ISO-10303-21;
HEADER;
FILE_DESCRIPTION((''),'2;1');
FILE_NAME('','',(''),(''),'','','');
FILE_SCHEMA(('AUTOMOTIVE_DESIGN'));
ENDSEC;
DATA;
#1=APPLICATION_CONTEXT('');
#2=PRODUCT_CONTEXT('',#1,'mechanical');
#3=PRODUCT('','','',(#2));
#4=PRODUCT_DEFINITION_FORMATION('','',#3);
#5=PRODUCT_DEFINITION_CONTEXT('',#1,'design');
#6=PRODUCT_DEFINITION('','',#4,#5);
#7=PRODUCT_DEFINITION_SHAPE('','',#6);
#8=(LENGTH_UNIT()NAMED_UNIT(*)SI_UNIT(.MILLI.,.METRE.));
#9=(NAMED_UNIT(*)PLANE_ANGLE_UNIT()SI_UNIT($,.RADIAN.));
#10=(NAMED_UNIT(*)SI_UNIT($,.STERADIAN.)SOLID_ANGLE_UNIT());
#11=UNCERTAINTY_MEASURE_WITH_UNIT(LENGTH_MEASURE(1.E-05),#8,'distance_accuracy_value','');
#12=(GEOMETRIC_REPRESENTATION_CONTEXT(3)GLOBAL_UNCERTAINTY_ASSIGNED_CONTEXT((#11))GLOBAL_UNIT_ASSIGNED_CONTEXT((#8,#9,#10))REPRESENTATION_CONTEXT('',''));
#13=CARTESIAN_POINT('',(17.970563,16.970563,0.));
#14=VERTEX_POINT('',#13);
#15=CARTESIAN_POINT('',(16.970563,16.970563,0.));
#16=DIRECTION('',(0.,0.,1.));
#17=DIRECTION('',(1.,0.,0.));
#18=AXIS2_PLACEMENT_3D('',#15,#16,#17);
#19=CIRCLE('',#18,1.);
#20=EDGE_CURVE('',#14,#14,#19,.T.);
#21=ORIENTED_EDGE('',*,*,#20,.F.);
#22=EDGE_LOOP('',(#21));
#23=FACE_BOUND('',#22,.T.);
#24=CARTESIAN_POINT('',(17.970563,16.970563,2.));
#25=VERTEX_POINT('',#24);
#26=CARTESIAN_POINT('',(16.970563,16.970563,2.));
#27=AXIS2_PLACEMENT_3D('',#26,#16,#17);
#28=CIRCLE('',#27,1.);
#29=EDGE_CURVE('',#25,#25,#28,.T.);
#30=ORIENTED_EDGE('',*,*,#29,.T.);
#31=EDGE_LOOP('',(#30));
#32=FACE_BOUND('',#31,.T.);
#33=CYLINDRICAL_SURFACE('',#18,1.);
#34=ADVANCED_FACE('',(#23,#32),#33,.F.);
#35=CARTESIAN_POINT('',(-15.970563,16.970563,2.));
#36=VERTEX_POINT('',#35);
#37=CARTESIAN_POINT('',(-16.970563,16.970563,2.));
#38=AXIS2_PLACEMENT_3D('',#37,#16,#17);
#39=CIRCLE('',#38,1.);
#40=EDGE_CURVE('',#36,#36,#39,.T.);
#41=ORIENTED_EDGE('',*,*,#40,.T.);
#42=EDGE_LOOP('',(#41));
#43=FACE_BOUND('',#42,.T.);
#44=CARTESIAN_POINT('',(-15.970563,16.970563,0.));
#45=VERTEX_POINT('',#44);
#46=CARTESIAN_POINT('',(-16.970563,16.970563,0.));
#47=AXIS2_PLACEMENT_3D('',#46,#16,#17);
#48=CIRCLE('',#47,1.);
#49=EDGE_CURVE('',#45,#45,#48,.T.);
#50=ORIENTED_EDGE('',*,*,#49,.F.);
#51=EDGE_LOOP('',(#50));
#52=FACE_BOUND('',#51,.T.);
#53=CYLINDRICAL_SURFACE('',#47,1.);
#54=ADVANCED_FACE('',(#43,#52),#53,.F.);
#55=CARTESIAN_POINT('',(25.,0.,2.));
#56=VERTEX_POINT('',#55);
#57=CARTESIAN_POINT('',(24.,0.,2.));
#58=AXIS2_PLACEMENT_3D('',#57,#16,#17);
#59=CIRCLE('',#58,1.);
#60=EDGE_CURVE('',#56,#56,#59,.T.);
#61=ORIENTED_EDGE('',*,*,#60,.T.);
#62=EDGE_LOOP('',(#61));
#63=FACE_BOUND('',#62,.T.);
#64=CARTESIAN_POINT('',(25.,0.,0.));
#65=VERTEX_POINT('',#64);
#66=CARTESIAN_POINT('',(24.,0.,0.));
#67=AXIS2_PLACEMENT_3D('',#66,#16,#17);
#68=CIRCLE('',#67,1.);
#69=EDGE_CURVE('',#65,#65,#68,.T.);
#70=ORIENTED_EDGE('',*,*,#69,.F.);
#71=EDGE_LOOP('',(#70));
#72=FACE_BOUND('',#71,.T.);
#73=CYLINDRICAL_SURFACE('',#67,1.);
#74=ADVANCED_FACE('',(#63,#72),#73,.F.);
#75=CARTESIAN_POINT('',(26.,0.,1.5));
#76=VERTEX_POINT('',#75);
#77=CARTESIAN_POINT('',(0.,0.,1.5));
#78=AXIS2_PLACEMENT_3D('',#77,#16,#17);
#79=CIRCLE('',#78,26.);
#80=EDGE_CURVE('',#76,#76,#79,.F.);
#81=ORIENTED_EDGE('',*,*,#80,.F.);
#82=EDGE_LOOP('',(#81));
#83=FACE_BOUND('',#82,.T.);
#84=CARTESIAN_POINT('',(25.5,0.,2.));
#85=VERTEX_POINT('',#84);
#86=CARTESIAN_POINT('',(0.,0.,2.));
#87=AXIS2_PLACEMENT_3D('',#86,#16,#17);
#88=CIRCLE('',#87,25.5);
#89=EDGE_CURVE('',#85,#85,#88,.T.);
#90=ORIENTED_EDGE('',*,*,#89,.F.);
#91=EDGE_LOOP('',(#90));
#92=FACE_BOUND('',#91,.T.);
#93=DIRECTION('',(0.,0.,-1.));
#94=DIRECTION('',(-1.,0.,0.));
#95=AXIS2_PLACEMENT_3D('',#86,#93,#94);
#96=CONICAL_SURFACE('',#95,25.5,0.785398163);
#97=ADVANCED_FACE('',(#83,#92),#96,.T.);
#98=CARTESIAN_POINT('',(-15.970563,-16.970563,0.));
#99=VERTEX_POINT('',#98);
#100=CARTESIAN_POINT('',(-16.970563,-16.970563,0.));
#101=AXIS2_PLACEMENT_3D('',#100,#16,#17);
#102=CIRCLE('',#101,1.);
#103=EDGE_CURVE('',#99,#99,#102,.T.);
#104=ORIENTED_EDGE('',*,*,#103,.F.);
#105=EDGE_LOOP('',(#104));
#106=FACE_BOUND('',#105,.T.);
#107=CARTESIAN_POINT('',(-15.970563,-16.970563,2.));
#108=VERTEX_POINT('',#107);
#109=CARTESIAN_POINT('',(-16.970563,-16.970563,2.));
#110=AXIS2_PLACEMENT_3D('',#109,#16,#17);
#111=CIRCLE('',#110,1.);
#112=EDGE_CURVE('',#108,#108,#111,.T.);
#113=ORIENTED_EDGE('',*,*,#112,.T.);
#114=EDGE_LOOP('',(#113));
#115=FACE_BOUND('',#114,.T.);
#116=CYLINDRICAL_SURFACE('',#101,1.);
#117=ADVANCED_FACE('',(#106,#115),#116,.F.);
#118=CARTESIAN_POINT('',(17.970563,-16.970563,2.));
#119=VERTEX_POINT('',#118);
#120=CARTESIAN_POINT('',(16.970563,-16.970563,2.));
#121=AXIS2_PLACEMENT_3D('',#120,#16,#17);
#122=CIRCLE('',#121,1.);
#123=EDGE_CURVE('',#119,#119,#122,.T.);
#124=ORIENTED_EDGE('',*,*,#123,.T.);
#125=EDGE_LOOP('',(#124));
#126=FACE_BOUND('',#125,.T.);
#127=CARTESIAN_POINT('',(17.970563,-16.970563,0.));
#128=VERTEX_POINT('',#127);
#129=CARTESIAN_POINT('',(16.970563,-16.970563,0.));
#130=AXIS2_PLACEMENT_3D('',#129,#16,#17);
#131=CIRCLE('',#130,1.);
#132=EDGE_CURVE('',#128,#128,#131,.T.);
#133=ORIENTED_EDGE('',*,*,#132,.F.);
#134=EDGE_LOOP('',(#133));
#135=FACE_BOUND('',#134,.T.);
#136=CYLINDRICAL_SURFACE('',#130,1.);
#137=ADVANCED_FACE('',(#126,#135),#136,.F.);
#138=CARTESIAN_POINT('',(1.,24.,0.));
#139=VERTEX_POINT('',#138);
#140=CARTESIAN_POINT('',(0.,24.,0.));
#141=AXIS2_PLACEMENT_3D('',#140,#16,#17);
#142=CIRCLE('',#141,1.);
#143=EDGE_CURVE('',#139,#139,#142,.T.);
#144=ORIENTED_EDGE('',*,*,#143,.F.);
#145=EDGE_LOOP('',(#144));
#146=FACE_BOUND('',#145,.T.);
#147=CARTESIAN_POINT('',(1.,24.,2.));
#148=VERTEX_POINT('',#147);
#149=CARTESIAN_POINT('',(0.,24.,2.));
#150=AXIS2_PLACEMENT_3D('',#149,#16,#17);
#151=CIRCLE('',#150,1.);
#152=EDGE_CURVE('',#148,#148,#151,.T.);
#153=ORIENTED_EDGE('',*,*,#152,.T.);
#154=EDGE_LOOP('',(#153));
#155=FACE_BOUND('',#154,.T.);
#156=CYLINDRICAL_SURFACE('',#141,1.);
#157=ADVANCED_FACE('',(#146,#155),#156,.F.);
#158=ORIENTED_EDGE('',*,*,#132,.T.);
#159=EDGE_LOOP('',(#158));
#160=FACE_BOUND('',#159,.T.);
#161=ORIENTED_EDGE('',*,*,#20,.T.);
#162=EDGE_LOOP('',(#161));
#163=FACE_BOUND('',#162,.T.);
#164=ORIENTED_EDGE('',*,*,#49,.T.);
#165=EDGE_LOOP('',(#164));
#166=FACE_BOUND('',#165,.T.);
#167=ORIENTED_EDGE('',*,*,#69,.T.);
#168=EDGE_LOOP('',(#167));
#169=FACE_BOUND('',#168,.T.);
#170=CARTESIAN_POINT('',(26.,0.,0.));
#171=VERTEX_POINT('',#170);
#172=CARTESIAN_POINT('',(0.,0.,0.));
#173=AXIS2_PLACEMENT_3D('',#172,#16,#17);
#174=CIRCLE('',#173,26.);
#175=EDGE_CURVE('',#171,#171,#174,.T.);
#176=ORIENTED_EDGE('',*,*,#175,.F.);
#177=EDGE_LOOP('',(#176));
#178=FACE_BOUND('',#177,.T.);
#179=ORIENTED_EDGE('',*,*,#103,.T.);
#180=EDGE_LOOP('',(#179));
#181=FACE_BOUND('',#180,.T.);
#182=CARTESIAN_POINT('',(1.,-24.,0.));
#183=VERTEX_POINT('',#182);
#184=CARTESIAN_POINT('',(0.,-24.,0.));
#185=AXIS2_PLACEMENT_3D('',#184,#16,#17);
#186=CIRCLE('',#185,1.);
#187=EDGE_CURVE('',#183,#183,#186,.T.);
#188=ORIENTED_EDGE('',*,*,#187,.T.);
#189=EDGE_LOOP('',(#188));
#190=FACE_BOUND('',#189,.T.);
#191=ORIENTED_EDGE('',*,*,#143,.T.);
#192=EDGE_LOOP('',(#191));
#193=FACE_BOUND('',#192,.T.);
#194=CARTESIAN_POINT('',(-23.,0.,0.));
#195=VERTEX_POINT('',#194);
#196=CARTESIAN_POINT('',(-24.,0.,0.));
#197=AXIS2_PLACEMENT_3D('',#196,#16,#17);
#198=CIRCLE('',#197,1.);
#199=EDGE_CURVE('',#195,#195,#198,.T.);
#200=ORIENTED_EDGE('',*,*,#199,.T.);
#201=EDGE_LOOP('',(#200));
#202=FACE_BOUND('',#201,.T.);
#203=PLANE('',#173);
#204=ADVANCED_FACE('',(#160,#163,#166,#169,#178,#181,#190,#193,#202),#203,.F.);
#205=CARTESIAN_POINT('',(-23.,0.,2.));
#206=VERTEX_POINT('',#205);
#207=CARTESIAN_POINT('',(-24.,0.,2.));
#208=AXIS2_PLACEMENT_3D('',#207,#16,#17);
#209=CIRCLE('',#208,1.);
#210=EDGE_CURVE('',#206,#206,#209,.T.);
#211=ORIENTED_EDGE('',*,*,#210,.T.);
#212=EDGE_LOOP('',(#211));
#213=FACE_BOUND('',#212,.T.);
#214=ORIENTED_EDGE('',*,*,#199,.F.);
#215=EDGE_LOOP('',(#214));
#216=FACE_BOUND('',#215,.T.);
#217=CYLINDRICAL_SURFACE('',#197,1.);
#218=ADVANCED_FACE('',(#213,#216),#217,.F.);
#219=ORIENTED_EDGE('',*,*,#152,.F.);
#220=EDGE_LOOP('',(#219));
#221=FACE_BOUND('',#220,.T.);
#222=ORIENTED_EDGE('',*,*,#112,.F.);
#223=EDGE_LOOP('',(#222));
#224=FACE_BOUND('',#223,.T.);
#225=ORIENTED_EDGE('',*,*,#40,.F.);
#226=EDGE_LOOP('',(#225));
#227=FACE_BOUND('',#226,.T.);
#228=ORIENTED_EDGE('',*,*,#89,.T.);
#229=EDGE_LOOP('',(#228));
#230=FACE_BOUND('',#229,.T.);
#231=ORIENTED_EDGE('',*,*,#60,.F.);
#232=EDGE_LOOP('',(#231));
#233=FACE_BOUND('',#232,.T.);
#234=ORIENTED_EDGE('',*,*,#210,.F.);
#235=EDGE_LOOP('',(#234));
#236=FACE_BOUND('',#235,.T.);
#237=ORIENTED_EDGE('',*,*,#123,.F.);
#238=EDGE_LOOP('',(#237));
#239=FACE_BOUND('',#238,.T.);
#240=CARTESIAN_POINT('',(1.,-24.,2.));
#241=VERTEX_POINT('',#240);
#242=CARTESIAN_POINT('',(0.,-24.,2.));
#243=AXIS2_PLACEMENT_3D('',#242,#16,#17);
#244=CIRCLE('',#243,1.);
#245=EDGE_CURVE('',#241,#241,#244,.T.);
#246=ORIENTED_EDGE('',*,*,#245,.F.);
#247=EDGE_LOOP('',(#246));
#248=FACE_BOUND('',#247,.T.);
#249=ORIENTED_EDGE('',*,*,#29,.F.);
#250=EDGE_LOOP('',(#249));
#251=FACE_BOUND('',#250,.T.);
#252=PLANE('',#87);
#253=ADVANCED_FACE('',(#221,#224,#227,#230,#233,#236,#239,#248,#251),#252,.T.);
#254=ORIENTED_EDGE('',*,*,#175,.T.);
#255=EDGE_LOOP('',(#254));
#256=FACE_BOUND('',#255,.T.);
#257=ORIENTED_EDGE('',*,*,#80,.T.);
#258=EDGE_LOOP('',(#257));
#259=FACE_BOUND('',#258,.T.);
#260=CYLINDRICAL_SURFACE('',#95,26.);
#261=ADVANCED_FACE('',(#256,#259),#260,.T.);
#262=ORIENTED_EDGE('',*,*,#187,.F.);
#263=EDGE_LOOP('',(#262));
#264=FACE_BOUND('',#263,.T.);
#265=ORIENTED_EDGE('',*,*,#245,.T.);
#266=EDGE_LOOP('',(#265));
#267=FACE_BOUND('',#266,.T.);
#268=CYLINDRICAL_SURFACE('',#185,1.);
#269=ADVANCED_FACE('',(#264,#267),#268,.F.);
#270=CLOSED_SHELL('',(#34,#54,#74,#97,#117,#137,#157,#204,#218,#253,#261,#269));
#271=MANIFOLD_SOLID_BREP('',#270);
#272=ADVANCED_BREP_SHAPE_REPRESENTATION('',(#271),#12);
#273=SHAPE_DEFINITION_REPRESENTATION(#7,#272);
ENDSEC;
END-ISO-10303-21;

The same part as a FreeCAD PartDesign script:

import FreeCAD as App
import Part
import Sketcher
from FreeCAD import Vector


def edges_at(feature, points):
    """Names of the edges that pass closest to the given points."""
    edges = feature.Shape.Edges
    near = lambda p: min(range(len(edges)), key=lambda i: edges[i].distToShape(Part.Vertex(*p))[0])
    return sorted({f"Edge{near(p) + 1}" for p in points})

doc = App.newDocument("Part")
body = doc.addObject("PartDesign::Body", "Body")

sketch1 = doc.addObject("Sketcher::SketchObject", "Sketch")
body.addObject(sketch1)
sketch1.AttachmentSupport = (doc.XY_Plane, [""])
sketch1.MapMode = "FlatFace"
sketch1.addGeometry(Part.Circle(Vector(0, 0, 0), Vector(0, 0, 1), 26), False)
sketch1.addConstraint([
    Sketcher.Constraint("Coincident", 0, 3, -1, 1),
    Sketcher.Constraint("Diameter", 0, 52.0),
])
pad1 = doc.addObject("PartDesign::Pad", "Pad")
body.addObject(pad1)
pad1.Profile = sketch1
pad1.Length = 2

sketch2 = doc.addObject("Sketcher::SketchObject", "Sketch001")
body.addObject(sketch2)
sketch2.AttachmentSupport = (doc.XY_Plane, [""])
sketch2.MapMode = "FlatFace"
sketch2.AttachmentOffset = App.Placement(Vector(0, 0, 2), App.Rotation())
sketch2.addGeometry([
    Part.Circle(Vector(0, 24, 0), Vector(0, 0, 1), 1),
    Part.Circle(Vector(17, 17, 0), Vector(0, 0, 1), 1),
    Part.Circle(Vector(24, 0, 0), Vector(0, 0, 1), 1),
    Part.Circle(Vector(17, -17, 0), Vector(0, 0, 1), 1),
    Part.Circle(Vector(0, -24, 0), Vector(0, 0, 1), 1),
    Part.Circle(Vector(-17, -17, 0), Vector(0, 0, 1), 1),
    Part.Circle(Vector(-24, 0, 0), Vector(0, 0, 1), 1),
    Part.Circle(Vector(-17, 17, 0), Vector(0, 0, 1), 1),
], False)
sketch2.addConstraint([
    Sketcher.Constraint("Equal", 0, 1),
    Sketcher.Constraint("Equal", 1, 2),
    Sketcher.Constraint("Equal", 2, 3),
    Sketcher.Constraint("Equal", 3, 4),
    Sketcher.Constraint("Equal", 4, 5),
    Sketcher.Constraint("Equal", 5, 6),
    Sketcher.Constraint("Equal", 6, 7),
    Sketcher.Constraint("Symmetric", 0, 3, 4, 3, -1, 1),
    Sketcher.Constraint("Symmetric", 1, 3, 5, 3, -1, 1),
    Sketcher.Constraint("Symmetric", 2, 3, 6, 3, -1, 1),
    Sketcher.Constraint("Symmetric", 3, 3, 7, 3, -1, 1),
    Sketcher.Constraint("Symmetric", 3, 3, 5, 3, -2),
    Sketcher.Constraint("PointOnObject", 0, 3, -2),
    Sketcher.Constraint("PointOnObject", 2, 3, -1),
    Sketcher.Constraint("Diameter", 0, 2.0),
    Sketcher.Constraint("DistanceY", -1, 1, 0, 3, 24.0),
    Sketcher.Constraint("DistanceX", -1, 1, 2, 3, 24.0),
    Sketcher.Constraint("DistanceX", -1, 1, 1, 3, 16.970563),
    Sketcher.Constraint("DistanceY", -1, 1, 1, 3, 16.970563),
])
pocket1 = doc.addObject("PartDesign::Pocket", "Pocket")
body.addObject(pocket1)
pocket1.Profile = sketch2
pocket1.Length = 2
doc.recompute()

chamfer = doc.addObject("PartDesign::Chamfer", "Chamfer")
body.addObject(chamfer)
chamfer.Base = (pocket1, edges_at(pocket1, [(-26, 0, 2)]))
chamfer.Size = 0.5

doc.recompute()
